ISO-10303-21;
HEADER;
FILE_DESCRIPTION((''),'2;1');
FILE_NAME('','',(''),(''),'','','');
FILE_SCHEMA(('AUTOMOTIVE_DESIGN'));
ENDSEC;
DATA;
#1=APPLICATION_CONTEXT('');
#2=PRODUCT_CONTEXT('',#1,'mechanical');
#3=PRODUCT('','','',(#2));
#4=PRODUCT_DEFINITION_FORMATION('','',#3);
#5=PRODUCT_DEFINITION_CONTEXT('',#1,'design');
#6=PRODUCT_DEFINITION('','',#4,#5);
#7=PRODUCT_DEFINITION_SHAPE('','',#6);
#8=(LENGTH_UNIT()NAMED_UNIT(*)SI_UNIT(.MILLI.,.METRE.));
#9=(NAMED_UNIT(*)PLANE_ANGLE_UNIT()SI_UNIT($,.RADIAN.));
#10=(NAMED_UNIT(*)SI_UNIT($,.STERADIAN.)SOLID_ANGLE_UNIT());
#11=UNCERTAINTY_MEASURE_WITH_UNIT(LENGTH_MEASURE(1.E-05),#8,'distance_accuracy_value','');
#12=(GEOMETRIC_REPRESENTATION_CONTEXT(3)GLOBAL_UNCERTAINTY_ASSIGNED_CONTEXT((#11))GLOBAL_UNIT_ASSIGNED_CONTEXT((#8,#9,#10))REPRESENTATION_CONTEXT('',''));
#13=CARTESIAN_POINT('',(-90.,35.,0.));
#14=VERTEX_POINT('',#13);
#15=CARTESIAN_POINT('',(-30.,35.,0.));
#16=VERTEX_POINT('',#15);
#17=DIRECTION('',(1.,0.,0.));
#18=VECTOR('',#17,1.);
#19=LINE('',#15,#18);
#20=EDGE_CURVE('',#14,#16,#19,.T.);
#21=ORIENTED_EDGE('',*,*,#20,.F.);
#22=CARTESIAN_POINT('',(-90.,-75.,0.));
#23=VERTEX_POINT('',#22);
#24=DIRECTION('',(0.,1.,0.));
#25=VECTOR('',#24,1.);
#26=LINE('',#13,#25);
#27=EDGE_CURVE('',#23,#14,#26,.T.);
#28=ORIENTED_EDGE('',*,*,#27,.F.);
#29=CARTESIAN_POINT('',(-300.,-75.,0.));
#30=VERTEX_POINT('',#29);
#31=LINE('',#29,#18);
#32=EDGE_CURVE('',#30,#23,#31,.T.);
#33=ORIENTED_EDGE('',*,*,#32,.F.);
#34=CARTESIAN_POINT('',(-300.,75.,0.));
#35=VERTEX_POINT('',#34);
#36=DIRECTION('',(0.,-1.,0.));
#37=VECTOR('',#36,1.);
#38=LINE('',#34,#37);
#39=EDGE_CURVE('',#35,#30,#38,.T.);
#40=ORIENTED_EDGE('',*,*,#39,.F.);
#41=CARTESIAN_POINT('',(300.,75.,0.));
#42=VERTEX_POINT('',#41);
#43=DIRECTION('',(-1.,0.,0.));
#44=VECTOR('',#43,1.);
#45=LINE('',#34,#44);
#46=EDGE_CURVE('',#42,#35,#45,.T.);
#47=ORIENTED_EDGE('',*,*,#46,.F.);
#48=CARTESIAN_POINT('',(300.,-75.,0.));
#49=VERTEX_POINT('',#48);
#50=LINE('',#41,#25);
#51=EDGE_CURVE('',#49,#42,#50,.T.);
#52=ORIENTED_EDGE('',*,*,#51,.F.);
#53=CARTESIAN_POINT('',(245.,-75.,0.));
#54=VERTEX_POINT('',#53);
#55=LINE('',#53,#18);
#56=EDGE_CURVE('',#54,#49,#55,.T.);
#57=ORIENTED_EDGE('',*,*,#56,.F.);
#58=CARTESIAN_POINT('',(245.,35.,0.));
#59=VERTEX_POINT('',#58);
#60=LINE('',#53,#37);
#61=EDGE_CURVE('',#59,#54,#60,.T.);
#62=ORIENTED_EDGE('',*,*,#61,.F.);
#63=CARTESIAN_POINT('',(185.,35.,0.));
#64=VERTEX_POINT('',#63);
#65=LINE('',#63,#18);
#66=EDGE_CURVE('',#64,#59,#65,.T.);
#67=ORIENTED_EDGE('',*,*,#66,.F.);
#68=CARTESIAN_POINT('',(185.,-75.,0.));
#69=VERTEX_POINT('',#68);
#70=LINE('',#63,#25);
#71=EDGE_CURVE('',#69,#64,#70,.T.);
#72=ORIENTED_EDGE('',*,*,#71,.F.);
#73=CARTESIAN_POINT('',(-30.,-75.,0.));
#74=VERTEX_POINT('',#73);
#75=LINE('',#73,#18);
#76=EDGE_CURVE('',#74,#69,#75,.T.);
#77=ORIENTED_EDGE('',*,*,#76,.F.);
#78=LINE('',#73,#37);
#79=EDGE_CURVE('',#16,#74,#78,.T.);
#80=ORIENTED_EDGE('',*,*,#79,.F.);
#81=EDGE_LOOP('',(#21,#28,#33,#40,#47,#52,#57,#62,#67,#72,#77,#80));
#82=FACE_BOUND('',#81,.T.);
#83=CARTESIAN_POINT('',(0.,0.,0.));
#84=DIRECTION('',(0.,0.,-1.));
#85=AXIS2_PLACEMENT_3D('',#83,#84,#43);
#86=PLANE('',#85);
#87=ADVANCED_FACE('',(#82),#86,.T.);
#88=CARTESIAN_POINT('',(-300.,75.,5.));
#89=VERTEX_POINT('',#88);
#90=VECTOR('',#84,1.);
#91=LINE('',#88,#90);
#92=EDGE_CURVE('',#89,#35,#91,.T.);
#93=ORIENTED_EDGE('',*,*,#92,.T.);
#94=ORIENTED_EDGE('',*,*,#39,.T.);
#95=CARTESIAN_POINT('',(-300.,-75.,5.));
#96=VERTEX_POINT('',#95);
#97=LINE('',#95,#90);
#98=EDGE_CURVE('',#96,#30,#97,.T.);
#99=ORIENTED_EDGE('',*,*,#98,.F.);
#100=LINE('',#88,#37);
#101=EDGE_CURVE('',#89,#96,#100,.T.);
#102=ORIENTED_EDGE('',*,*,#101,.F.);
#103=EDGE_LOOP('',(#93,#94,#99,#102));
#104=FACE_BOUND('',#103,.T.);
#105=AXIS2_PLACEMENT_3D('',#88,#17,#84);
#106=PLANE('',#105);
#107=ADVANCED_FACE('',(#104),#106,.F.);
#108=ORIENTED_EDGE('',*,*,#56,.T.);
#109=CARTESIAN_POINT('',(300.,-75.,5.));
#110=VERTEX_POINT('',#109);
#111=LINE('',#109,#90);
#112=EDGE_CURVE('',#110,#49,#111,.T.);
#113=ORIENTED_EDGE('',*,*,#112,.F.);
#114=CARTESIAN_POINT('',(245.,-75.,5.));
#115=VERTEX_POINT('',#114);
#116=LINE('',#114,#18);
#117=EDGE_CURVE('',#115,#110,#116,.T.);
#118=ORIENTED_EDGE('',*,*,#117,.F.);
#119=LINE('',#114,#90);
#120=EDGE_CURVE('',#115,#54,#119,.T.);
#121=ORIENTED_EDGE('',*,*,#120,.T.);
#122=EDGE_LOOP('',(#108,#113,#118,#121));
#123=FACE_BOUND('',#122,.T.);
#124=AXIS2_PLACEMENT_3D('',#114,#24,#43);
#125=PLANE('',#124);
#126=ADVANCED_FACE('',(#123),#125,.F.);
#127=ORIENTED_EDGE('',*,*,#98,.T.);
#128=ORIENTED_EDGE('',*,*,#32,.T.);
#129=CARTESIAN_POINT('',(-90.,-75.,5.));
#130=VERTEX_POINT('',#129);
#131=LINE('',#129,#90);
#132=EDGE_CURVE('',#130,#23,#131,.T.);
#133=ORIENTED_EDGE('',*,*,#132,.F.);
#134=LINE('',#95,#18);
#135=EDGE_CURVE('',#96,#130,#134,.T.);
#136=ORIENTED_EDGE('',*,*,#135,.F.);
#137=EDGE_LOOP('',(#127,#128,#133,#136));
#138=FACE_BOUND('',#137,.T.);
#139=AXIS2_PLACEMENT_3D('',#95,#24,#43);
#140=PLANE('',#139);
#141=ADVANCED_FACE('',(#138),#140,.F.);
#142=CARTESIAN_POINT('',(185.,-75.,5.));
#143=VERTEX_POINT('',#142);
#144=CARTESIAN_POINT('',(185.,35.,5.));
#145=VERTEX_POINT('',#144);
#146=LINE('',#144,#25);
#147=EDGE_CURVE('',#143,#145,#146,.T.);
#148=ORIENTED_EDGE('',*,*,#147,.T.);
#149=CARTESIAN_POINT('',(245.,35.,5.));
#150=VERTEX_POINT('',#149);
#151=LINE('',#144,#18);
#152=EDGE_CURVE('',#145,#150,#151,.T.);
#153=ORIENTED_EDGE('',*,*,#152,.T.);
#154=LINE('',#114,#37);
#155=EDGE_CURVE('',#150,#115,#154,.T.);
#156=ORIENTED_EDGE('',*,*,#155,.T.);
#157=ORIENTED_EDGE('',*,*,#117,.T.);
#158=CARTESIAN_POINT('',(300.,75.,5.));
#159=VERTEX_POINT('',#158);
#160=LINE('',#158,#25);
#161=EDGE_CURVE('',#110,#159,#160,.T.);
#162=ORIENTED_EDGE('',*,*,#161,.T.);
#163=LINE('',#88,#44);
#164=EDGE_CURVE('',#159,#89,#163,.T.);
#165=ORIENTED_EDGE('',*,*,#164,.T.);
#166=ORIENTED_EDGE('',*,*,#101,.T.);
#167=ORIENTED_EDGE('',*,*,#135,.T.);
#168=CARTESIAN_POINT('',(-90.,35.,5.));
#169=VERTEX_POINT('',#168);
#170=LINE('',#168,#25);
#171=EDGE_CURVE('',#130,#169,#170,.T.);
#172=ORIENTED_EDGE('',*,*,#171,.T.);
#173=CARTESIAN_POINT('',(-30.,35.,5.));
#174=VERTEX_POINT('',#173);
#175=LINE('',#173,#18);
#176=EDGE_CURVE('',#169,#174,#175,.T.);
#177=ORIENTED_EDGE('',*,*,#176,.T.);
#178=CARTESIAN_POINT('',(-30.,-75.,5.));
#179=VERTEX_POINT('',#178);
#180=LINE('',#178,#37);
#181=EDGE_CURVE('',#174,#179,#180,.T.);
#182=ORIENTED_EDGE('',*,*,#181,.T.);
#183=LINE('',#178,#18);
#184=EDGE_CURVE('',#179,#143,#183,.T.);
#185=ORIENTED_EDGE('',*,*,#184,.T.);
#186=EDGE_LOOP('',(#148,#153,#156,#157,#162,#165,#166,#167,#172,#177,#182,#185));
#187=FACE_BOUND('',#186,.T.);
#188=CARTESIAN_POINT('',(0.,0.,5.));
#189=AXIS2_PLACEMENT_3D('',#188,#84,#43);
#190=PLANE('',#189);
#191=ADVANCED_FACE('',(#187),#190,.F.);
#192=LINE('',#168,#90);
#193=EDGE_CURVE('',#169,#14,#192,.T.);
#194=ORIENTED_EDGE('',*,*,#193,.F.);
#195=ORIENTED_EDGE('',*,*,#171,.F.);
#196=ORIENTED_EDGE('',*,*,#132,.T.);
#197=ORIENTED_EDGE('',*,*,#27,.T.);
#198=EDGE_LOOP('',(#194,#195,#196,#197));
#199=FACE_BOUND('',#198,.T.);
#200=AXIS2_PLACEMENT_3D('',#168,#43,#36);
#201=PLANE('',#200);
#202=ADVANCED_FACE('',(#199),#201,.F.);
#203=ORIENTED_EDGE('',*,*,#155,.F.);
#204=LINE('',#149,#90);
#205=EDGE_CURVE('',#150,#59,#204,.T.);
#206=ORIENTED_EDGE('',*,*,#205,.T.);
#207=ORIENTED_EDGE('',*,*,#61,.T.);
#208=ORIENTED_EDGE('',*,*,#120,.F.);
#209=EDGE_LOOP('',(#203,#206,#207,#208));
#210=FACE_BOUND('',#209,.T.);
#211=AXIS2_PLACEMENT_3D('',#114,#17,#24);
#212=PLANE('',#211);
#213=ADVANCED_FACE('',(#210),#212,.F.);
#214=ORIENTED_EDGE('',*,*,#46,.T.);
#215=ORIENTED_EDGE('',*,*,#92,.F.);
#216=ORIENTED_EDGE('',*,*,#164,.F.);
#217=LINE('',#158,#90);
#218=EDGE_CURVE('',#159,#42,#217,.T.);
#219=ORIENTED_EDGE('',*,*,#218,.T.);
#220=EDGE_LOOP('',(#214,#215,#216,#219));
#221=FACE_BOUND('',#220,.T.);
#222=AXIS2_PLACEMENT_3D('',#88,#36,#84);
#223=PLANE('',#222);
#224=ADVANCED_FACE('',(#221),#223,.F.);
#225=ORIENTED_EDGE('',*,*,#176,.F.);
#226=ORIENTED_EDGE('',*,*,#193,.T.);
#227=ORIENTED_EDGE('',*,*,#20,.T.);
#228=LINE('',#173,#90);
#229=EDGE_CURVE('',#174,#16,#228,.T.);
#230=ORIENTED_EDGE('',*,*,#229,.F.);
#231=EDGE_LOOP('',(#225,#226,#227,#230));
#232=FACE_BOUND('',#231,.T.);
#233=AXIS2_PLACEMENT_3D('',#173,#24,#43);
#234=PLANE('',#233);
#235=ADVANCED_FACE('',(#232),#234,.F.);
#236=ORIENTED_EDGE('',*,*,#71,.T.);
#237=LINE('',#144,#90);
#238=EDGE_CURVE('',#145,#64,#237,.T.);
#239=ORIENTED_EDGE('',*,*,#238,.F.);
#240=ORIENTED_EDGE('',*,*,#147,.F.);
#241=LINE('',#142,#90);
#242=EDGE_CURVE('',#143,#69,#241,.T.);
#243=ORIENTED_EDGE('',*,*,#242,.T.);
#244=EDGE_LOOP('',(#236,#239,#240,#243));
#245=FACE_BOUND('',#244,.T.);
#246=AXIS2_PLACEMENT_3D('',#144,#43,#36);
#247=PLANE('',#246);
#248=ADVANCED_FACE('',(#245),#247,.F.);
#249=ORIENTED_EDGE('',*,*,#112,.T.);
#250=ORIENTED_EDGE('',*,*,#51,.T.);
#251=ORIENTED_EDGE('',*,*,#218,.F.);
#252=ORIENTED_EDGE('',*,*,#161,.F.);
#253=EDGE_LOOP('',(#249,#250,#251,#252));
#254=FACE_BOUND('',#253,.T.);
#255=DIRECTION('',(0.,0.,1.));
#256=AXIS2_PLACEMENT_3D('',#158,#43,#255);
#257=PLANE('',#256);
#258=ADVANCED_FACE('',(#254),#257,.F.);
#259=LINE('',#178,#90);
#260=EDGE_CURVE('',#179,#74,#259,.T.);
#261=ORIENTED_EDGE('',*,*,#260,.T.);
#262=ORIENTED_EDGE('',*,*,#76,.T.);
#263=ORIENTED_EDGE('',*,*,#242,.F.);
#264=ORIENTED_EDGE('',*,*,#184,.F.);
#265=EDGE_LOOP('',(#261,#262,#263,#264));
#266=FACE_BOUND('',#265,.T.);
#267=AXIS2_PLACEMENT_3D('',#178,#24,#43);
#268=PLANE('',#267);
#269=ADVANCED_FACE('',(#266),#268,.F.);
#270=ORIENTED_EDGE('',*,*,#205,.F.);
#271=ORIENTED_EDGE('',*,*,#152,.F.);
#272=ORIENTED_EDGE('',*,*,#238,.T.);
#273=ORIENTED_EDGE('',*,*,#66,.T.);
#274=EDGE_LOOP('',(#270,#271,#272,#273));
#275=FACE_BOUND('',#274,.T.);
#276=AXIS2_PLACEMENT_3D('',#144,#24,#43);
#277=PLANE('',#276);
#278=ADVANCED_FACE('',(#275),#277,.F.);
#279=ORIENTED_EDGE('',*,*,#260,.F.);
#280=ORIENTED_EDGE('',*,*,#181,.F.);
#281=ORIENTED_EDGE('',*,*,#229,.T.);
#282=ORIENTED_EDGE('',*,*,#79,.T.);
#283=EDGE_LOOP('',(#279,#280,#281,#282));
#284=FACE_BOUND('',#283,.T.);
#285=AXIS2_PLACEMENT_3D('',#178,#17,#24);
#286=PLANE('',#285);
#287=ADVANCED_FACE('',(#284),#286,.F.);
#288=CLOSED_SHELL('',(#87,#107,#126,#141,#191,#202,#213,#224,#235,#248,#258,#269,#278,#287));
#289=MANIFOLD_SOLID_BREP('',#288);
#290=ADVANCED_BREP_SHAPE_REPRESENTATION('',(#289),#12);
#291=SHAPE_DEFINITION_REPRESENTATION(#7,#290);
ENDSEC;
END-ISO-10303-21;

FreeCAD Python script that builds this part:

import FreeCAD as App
import Part
import Sketcher
from FreeCAD import Vector
Q = App.Units.Quantity

doc = App.newDocument("Part")
body = doc.addObject("PartDesign::Body", "Body")

sketch1 = body.newObject("Sketcher::SketchObject", "Sketch")
sketch1.AttachmentSupport = (doc.getObject("XY_Plane"), [""])
sketch1.MapMode = "FlatFace"
sketch1.addGeometry([
    Part.LineSegment(Vector(300, 75, 0), Vector(-300, 75, 0)),
    Part.LineSegment(Vector(-300, 75, 0), Vector(-300, -75, 0)),
    Part.LineSegment(Vector(-300, -75, 0), Vector(-90, -75, 0)),
    Part.LineSegment(Vector(-90, -75, 0), Vector(-90, 35, 0)),
    Part.LineSegment(Vector(-90, 35, 0), Vector(-30, 35, 0)),
    Part.LineSegment(Vector(-30, 35, 0), Vector(-30, -75, 0)),
    Part.LineSegment(Vector(-30, -75, 0), Vector(185, -75, 0)),
    Part.LineSegment(Vector(185, -75, 0), Vector(185, 35, 0)),
    Part.LineSegment(Vector(185, 35, 0), Vector(245, 35, 0)),
    Part.LineSegment(Vector(245, 35, 0), Vector(245, -75, 0)),
    Part.LineSegment(Vector(245, -75, 0), Vector(300, -75, 0)),
    Part.LineSegment(Vector(300, -75, 0), Vector(300, 75, 0)),
], False)
sketch1.addConstraint([
    Sketcher.Constraint("Coincident", 0, 2, 1, 1),
    Sketcher.Constraint("Coincident", 1, 2, 2, 1),
    Sketcher.Constraint("Coincident", 2, 2, 3, 1),
    Sketcher.Constraint("Coincident", 3, 2, 4, 1),
    Sketcher.Constraint("Coincident", 4, 2, 5, 1),
    Sketcher.Constraint("Coincident", 5, 2, 6, 1),
    Sketcher.Constraint("Coincident", 6, 2, 7, 1),
    Sketcher.Constraint("Coincident", 7, 2, 8, 1),
    Sketcher.Constraint("Coincident", 8, 2, 9, 1),
    Sketcher.Constraint("Coincident", 9, 2, 10, 1),
    Sketcher.Constraint("Coincident", 10, 2, 11, 1),
    Sketcher.Constraint("Coincident", 11, 2, 0, 1),
    Sketcher.Constraint("Horizontal", 0),
    Sketcher.Constraint("Vertical", 1),
    Sketcher.Constraint("Horizontal", 2),
    Sketcher.Constraint("Vertical", 3),
    Sketcher.Constraint("Horizontal", 4),
    Sketcher.Constraint("Vertical", 5),
    Sketcher.Constraint("Horizontal", 6),
    Sketcher.Constraint("Vertical", 7),
    Sketcher.Constraint("Horizontal", 8),
    Sketcher.Constraint("Vertical", 9),
    Sketcher.Constraint("Horizontal", 10),
    Sketcher.Constraint("Vertical", 11),
    Sketcher.Constraint("Symmetric", 0, 2, 10, 2, -1, 1),
    Sketcher.Constraint("Horizontal", 2, 2, 5, 2),
    Sketcher.Constraint("Horizontal", 4, 2, 7, 2),
    Sketcher.Constraint("Horizontal", 6, 2, 9, 2),
    Sketcher.Constraint("Equal", 4, 8),
    Sketcher.Constraint("DistanceX", 0, 2, 0, 1, Q("600 mm")),
    Sketcher.Constraint("DistanceX", 2, 1, 2, 2, Q("210 mm")),
    Sketcher.Constraint("DistanceX", 4, 1, 4, 2, Q("60 mm")),
    Sketcher.Constraint("DistanceX", 6, 1, 6, 2, Q("215 mm")),
    Sketcher.Constraint("DistanceY", 1, 2, 1, 1, Q("150 mm")),
    Sketcher.Constraint("DistanceY", 3, 1, 3, 2, Q("110 mm")),
])
pad1 = body.newObject("PartDesign::Pad", "Pad")
pad1.Profile = sketch1
pad1.Length = 5

doc.recompute()
